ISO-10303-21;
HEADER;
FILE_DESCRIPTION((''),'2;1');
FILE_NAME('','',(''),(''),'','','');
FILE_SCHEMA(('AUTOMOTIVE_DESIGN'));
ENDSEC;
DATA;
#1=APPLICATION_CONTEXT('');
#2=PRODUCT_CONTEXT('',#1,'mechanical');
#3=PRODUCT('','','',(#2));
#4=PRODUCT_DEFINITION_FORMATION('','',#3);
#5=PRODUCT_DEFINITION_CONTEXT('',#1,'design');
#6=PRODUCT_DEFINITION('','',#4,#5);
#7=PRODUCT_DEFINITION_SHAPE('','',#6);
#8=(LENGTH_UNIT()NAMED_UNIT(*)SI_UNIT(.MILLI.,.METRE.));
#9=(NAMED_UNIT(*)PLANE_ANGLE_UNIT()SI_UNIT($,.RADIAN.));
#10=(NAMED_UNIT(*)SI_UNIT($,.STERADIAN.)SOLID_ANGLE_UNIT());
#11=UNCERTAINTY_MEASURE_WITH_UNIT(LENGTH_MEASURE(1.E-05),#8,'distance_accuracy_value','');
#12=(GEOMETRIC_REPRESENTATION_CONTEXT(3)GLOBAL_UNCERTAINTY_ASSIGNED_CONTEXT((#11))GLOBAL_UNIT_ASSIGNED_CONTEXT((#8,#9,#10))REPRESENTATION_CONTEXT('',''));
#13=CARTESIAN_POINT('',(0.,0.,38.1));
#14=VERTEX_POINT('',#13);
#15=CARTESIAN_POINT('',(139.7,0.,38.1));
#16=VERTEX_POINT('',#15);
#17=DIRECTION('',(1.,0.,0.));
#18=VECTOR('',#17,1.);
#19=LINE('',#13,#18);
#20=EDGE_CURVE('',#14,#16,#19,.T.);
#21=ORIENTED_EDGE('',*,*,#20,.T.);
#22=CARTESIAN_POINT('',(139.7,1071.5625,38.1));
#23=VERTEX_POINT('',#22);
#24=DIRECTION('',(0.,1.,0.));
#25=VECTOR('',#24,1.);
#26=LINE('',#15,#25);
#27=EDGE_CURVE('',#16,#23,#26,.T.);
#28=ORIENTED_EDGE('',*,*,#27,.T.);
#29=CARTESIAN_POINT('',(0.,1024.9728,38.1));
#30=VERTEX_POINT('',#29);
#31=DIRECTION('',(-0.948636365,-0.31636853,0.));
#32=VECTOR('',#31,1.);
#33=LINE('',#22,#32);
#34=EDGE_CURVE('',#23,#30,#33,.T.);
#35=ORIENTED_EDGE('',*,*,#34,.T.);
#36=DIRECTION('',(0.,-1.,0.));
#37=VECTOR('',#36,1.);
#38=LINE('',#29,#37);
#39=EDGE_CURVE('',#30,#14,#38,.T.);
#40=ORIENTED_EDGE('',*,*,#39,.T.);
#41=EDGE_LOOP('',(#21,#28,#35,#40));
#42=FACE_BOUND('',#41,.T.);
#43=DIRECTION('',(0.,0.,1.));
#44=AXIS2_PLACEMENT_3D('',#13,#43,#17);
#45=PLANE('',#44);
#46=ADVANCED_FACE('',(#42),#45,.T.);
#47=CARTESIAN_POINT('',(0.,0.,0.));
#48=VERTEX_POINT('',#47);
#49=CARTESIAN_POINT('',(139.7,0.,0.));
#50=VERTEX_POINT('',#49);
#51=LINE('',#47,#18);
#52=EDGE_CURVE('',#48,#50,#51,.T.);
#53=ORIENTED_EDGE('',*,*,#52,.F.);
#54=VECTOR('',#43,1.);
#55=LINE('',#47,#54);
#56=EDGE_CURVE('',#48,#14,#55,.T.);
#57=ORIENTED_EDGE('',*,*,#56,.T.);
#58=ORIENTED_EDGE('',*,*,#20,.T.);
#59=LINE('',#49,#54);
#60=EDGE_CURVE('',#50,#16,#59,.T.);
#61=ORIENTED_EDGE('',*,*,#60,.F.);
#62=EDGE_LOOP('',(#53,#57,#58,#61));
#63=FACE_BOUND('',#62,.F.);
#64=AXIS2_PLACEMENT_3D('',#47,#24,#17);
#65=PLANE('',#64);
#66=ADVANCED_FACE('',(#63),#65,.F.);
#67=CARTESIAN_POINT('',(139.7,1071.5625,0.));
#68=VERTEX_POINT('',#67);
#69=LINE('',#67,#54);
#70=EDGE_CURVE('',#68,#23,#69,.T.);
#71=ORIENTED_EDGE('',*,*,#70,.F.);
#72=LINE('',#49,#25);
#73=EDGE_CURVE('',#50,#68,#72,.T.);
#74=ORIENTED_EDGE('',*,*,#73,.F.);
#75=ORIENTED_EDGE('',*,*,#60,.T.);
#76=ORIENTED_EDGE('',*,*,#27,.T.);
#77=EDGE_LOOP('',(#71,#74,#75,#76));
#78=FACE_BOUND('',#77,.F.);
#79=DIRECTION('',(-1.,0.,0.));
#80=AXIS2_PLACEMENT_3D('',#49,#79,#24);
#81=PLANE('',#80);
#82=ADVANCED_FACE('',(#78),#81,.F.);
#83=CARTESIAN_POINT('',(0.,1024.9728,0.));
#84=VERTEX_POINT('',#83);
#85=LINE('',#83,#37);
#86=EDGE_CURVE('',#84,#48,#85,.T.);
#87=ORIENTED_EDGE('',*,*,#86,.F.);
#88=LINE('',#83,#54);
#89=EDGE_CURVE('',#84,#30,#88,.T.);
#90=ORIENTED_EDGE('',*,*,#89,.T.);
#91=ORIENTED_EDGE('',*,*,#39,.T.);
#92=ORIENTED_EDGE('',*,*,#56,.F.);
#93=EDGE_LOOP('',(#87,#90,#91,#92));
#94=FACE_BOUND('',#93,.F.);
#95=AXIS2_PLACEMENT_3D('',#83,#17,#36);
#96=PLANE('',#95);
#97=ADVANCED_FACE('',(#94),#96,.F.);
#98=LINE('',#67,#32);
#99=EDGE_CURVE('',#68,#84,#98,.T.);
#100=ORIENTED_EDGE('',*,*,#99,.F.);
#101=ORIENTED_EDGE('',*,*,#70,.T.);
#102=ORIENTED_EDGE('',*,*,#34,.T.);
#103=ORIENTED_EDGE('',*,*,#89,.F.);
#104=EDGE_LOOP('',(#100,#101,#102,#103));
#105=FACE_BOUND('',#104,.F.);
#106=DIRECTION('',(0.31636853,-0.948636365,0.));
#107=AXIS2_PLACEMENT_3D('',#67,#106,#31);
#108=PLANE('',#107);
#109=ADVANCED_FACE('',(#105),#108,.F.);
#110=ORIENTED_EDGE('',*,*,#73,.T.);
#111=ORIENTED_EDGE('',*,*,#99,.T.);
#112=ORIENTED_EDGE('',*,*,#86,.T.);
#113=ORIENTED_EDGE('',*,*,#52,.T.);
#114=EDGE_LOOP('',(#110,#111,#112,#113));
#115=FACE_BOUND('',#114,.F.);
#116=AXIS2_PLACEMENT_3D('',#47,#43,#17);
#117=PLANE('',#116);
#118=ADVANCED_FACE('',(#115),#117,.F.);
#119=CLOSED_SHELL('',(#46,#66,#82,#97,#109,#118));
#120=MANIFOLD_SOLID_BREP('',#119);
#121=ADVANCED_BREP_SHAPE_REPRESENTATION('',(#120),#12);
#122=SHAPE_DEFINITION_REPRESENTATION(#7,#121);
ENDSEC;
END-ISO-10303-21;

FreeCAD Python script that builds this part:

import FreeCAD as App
import Part
import Sketcher
from FreeCAD import Vector
Q = App.Units.Quantity


def add_polygon(sketch, points):
    """Adds a closed chain of lines whose ends are joined by coincident constraints."""
    first, n = sketch.GeometryCount, len(points)
    for a, b in zip(points, points[1:] + points[:1]):
        sketch.addGeometry(Part.LineSegment(App.Vector(*a, 0), App.Vector(*b, 0)), False)
    for i in range(n):
        sketch.addConstraint(Sketcher.Constraint("Coincident", first + i, 2, first + (i + 1) % n, 1))

doc = App.newDocument("Part")
params = doc.addObject("Spreadsheet::Sheet", "Params")
for row, (alias, value) in enumerate([
    ("sketch1_width", "5.5 in"),
    ("sketch1_height", "42.1875 in"),
    ("pad1_length", "1.5 in"),
], start=1):
    params.set(f"A{row}", alias)
    params.set(f"B{row}", "=" + value)
    params.setAlias(f"B{row}", alias)

body = doc.addObject("PartDesign::Body", "Body")

sketch1 = body.newObject("Sketcher::SketchObject", "Sketch")
sketch1.AttachmentSupport = (doc.getObject("XY_Plane"), [""])
sketch1.MapMode = "FlatFace"
add_polygon(sketch1, [(0, 1025), (0, 0), (140, 0), (140, 1072)])
sketch1.addConstraint([
    Sketcher.Constraint("Vertical", 0),
    Sketcher.Constraint("Horizontal", 1),
    Sketcher.Constraint("Vertical", 2),
    Sketcher.Constraint("Coincident", 0, 2, -1, 1),
    Sketcher.Constraint("DistanceX", 1, 1, 1, 2, Q("5.5 in")),
    Sketcher.Constraint("DistanceY", 2, 1, 2, 2, Q("42.1875 in")),
    Sketcher.Constraint("Distance", 3, Q("5.7978 in")),
])
sketch1.setExpression("Constraints[8]", "Params.sketch1_width")
sketch1.setExpression("Constraints[9]", "Params.sketch1_height")
pad1 = body.newObject("PartDesign::Pad", "Pad")
pad1.Profile = sketch1
pad1.setExpression("Length", "Params.pad1_length")

doc.recompute()
